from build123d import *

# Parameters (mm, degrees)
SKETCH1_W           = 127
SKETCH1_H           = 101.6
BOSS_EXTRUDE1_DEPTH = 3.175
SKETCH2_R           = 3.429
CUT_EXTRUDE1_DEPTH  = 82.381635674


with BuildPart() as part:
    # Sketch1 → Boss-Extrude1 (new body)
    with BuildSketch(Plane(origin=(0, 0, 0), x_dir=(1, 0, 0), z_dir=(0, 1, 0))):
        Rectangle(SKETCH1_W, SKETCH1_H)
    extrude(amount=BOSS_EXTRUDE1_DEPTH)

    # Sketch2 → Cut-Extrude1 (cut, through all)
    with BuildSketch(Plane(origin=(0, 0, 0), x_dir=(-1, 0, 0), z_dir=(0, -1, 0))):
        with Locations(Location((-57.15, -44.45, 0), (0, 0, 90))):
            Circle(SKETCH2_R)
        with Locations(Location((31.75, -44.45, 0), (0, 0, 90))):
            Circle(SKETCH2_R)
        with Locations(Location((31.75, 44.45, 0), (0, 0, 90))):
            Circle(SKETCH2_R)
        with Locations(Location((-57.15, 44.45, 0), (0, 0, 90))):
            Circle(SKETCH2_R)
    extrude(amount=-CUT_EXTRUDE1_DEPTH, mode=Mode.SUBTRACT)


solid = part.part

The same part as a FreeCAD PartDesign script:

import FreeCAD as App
import Part
import Sketcher

V = App.Vector
Q = App.Units.Quantity


def add_polygon(sketch, points):
    """Adds a closed chain of lines whose ends are joined by coincident constraints."""
    first, n = sketch.GeometryCount, len(points)
    for a, b in zip(points, points[1:] + points[:1]):
        sketch.addGeometry(Part.LineSegment(App.Vector(*a, 0), App.Vector(*b, 0)), False)
    for i in range(n):
        sketch.addConstraint(Sketcher.Constraint("Coincident", first + i, 2, first + (i + 1) % n, 1))

doc = App.newDocument("Part")
params = doc.addObject("Spreadsheet::Sheet", "Params")
for row, (alias, value) in enumerate([
    ("sketch1_width", "5 in"),
    ("sketch1_height", "4 in"),
    ("pad1_length", "0.125 in"),
    ("sketch2_diameter", "0.27 in"),
], start=1):
    params.set(f"A{row}", alias)
    params.set(f"B{row}", "=" + value)
    params.setAlias(f"B{row}", alias)

body = doc.addObject("PartDesign::Body", "Body")

sketch1 = body.newObject("Sketcher::SketchObject", "Sketch")
sketch1.AttachmentSupport = (doc.getObject("XZ_Plane"), [""])
sketch1.MapMode = "FlatFace"
add_polygon(sketch1, [(-64, -51), (-64, 51), (64, 51), (64, -51)])
sketch1.addConstraint([
    Sketcher.Constraint("Vertical", 0),
    Sketcher.Constraint("Horizontal", 1),
    Sketcher.Constraint("Vertical", 2),
    Sketcher.Constraint("Horizontal", 3),
    Sketcher.Constraint("Symmetric", 0, 2, 2, 2, -1, 1),
    Sketcher.Constraint("DistanceX", 1, 1, 1, 2, Q("5 in")),
    Sketcher.Constraint("DistanceY", 0, 1, 0, 2, Q("4 in")),
])
sketch1.setExpression("Constraints[9]", "Params.sketch1_width")
sketch1.setExpression("Constraints[10]", "Params.sketch1_height")
pad1 = body.newObject("PartDesign::Pad", "Pad")
pad1.Profile = sketch1
pad1.setExpression("Length", "Params.pad1_length")
pad1.Reversed = True

sketch2 = body.newObject("Sketcher::SketchObject", "Sketch001")
sketch2.AttachmentSupport = (doc.getObject("XZ_Plane"), [""])
sketch2.MapMode = "FlatFace"
sketch2.addGeometry([
    Part.Circle(V(57.1, 44.5, 0), V(0, 0, 1), 3.4),
    Part.Circle(V(-31.8, 44.5, 0), V(0, 0, 1), 3.4),
    Part.Circle(V(-31.8, -44.5, 0), V(0, 0, 1), 3.4),
    Part.Circle(V(57.1, -44.5, 0), V(0, 0, 1), 3.4),
], False)
sketch2.addConstraint([
    Sketcher.Constraint("Equal", 0, 1),
    Sketcher.Constraint("Equal", 1, 2),
    Sketcher.Constraint("Equal", 2, 3),
    Sketcher.Constraint("Symmetric", 1, 3, 2, 3, -1),
    Sketcher.Constraint("Symmetric", 0, 3, 3, 3, -1),
    Sketcher.Constraint("Horizontal", 0, 3, 1, 3),
    Sketcher.Constraint("Diameter", 0, Q("0.27 in")),
    Sketcher.Constraint("DistanceX", 1, 3, 0, 3, Q("3.5 in")),
    Sketcher.Constraint("DistanceY", 2, 3, 1, 3, Q("3.5 in")),
    Sketcher.Constraint("DistanceX", -1, 1, 0, 3, Q("2.25 in")),
])
sketch2.setExpression("Constraints[6]", "Params.sketch2_diameter")
pocket1 = body.newObject("PartDesign::Pocket", "Pocket")
pocket1.Profile = sketch2
pocket1.Type = "ThroughAll"

doc.recompute()
